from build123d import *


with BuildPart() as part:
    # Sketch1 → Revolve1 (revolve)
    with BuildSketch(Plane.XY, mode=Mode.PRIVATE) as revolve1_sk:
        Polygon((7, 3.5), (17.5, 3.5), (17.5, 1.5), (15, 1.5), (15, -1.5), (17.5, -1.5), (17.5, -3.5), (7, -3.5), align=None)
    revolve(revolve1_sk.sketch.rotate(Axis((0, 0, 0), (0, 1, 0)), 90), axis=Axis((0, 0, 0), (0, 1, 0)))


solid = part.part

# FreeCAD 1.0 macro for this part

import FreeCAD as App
import Part
import Sketcher

V = App.Vector
Q = App.Units.Quantity


def add_polygon(sketch, points):
    """Adds a closed chain of lines whose ends are joined by coincident constraints."""
    first, n = sketch.GeometryCount, len(points)
    for a, b in zip(points, points[1:] + points[:1]):
        sketch.addGeometry(Part.LineSegment(App.Vector(*a, 0), App.Vector(*b, 0)), False)
    for i in range(n):
        sketch.addConstraint(Sketcher.Constraint("Coincident", first + i, 2, first + (i + 1) % n, 1))

doc = App.newDocument("Part")
body = doc.addObject("PartDesign::Body", "Body")

sketch1 = body.newObject("Sketcher::SketchObject", "Sketch")
sketch1.AttachmentSupport = (doc.getObject("XY_Plane"), [""])
sketch1.MapMode = "FlatFace"
add_polygon(sketch1, [(17.5, 3.5), (7, 3.5), (7, -3.5), (17.5, -3.5), (17.5, -1.5), (15, -1.5), (15, 1.5), (17.5, 1.5)])
sketch1.addConstraint(Sketcher.Constraint("Horizontal", 0))
sketch1.addConstraint(Sketcher.Constraint("Vertical", 1))
sketch1.addConstraint(Sketcher.Constraint("Horizontal", 2))
sketch1.addConstraint(Sketcher.Constraint("Vertical", 3))
sketch1.addConstraint(Sketcher.Constraint("Horizontal", 4))
sketch1.addConstraint(Sketcher.Constraint("Vertical", 5))
sketch1.addConstraint(Sketcher.Constraint("Horizontal", 6))
sketch1.addConstraint(Sketcher.Constraint("Vertical", 7))
sketch1.addConstraint(Sketcher.Constraint("Symmetric", 3, 2, 6, 2, -1))
sketch1.addConstraint(Sketcher.Constraint("Equal", 3, 7))
sketch1.addConstraint(Sketcher.Constraint("DistanceY", 1, 2, 1, 1, Q("7 mm")))
sketch1.addConstraint(Sketcher.Constraint("DistanceY", 3, 1, 3, 2, Q("2 mm")))
sketch1.addConstraint(Sketcher.Constraint("DistanceX", 0, 2, 0, 1, Q("10.5 mm")))
sketch1.addConstraint(Sketcher.Constraint("DistanceX", 4, 2, 4, 1, Q("2.5 mm")))
sketch1.addConstraint(Sketcher.Constraint("DistanceX", -1, 1, 0, 2, Q("7 mm")))
revolution = body.newObject("PartDesign::Revolution", "Revolution")
revolution.Profile = sketch1
revolution.ReferenceAxis = (sketch1, ["V_Axis"])
revolution.Angle = 360

doc.recompute()
